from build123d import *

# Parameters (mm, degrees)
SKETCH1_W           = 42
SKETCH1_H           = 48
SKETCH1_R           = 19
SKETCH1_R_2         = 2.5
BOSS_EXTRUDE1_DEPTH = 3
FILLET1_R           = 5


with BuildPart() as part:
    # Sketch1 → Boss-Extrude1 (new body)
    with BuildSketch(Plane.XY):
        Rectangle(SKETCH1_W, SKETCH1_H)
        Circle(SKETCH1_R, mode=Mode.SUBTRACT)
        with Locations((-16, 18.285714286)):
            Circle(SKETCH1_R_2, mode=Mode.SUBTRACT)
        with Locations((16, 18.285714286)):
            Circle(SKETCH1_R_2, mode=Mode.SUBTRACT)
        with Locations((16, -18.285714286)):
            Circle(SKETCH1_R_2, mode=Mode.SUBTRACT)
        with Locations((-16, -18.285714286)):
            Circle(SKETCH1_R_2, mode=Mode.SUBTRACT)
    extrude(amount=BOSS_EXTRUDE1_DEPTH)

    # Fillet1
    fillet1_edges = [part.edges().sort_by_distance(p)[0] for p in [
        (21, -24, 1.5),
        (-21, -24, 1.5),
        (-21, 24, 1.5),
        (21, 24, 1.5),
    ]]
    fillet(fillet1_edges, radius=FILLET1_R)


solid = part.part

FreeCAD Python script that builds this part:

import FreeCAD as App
import Part
import Sketcher

V = App.Vector
Q = App.Units.Quantity


def edges_at(feature, points):
    """Names of the edges that pass closest to the given points."""
    edges = feature.Shape.Edges
    near = lambda p: min(range(len(edges)), key=lambda i: edges[i].distToShape(Part.Vertex(*p))[0])
    return sorted({f"Edge{near(p) + 1}" for p in points})


def add_polygon(sketch, points):
    """Adds a closed chain of lines whose ends are joined by coincident constraints."""
    first, n = sketch.GeometryCount, len(points)
    for a, b in zip(points, points[1:] + points[:1]):
        sketch.addGeometry(Part.LineSegment(App.Vector(*a, 0), App.Vector(*b, 0)), False)
    for i in range(n):
        sketch.addConstraint(Sketcher.Constraint("Coincident", first + i, 2, first + (i + 1) % n, 1))

doc = App.newDocument("Part")
body = doc.addObject("PartDesign::Body", "Body")

sketch1 = body.newObject("Sketcher::SketchObject", "Sketch")
sketch1.AttachmentSupport = (doc.getObject("XY_Plane"), [""])
sketch1.MapMode = "FlatFace"
add_polygon(sketch1, [(-21, 24), (-21, -24), (21, -24), (21, 24)])
sketch1.addGeometry(Part.Circle(V(-16, -18.3, 0), V(0, 0, 1), 2.5), False)
sketch1.addGeometry(Part.Circle(V(16, -18.3, 0), V(0, 0, 1), 2.5), False)
sketch1.addGeometry(Part.Circle(V(-16, 18.3, 0), V(0, 0, 1), 2.5), False)
sketch1.addGeometry(Part.Circle(V(0, 0, 0), V(0, 0, 1), 19), False)
sketch1.addGeometry(Part.Circle(V(16, 18.3, 0), V(0, 0, 1), 2.5), False)
sketch1.addConstraint([
    Sketcher.Constraint("Vertical", 0),
    Sketcher.Constraint("Horizontal", 1),
    Sketcher.Constraint("Vertical", 2),
    Sketcher.Constraint("Horizontal", 3),
    Sketcher.Constraint("Coincident", 7, 3, -1, 1),
    Sketcher.Constraint("Equal", 4, 5),
    Sketcher.Constraint("Equal", 5, 6),
    Sketcher.Constraint("Equal", 6, 8),
    Sketcher.Constraint("Symmetric", 5, 3, 6, 3, -1, 1),
    Sketcher.Constraint("Symmetric", 4, 3, 8, 3, -1, 1),
    Sketcher.Constraint("Symmetric", 0, 2, 2, 2, -1, 1),
    Sketcher.Constraint("Symmetric", 4, 3, 5, 3, -2),
    Sketcher.Constraint("Diameter", 4, Q("5 mm")),
    Sketcher.Constraint("Diameter", 7, Q("38 mm")),
    Sketcher.Constraint("DistanceX", 1, 1, 1, 2, Q("42 mm")),
    Sketcher.Constraint("DistanceY", 0, 2, 0, 1, Q("48 mm")),
    Sketcher.Constraint("DistanceX", 4, 3, -1, 1, Q("16 mm")),
    Sketcher.Constraint("DistanceY", 4, 3, 6, 3, Q("36.571429 mm")),
])
pad1 = body.newObject("PartDesign::Pad", "Pad")
pad1.Profile = sketch1
pad1.Length = 3
doc.recompute()

fillet = body.newObject("PartDesign::Fillet", "Fillet")
fillet.Base = (pad1, edges_at(pad1, [
    (21, -24, 1.5),
    (-21, -24, 1.5),
    (-21, 24, 1.5),
    (21, 24, 1.5),
]))
fillet.Radius = 5

doc.recompute()
